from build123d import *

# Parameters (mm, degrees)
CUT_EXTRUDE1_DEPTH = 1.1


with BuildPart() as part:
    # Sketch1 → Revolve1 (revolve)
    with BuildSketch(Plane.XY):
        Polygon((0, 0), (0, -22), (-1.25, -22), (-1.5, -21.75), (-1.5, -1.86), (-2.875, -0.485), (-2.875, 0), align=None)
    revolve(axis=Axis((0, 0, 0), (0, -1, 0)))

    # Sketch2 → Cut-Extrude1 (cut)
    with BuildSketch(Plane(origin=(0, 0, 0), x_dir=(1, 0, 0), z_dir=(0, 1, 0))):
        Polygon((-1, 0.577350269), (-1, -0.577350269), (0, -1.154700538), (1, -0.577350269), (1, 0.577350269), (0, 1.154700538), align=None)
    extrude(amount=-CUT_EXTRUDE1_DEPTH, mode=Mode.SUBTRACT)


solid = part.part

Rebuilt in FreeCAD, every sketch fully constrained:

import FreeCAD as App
import Part
import Sketcher
from FreeCAD import Vector
Q = App.Units.Quantity


def add_polygon(sketch, points):
    """Adds a closed chain of lines whose ends are joined by coincident constraints."""
    first, n = sketch.GeometryCount, len(points)
    for a, b in zip(points, points[1:] + points[:1]):
        sketch.addGeometry(Part.LineSegment(App.Vector(*a, 0), App.Vector(*b, 0)), False)
    for i in range(n):
        sketch.addConstraint(Sketcher.Constraint("Coincident", first + i, 2, first + (i + 1) % n, 1))

doc = App.newDocument("Part")
body = doc.addObject("PartDesign::Body", "Body")

sketch1 = body.newObject("Sketcher::SketchObject", "Sketch")
sketch1.AttachmentSupport = (doc.getObject("XY_Plane"), [""])
sketch1.MapMode = "FlatFace"
add_polygon(sketch1, [(0, -22), (0, 0), (-2.875, 0), (-2.875, -0.485), (-1.5, -1.86), (-1.5, -21.75), (-1.25, -22)])
sketch1.addConstraint([
    Sketcher.Constraint("Vertical", 0),
    Sketcher.Constraint("Horizontal", 1),
    Sketcher.Constraint("Vertical", 2),
    Sketcher.Constraint("Vertical", 4),
    Sketcher.Constraint("Horizontal", 6),
    Sketcher.Constraint("Coincident", 0, 2, -1, 1),
    Sketcher.Constraint("Parallel", 3, 5),
    Sketcher.Constraint("DistanceY", 0, 1, 0, 2, Q("22 mm")),
    Sketcher.Constraint("Angle", 3, Q("-45 deg")),
    Sketcher.Constraint("DistanceX", 6, 1, 6, 2, Q("1.25 mm")),
    Sketcher.Constraint("DistanceY", 4, 2, 4, 1, Q("19.89 mm")),
    Sketcher.Constraint("DistanceX", 3, 2, -1, 1, Q("1.5 mm")),
    Sketcher.Constraint("DistanceX", 1, 2, 1, 1, Q("2.875 mm")),
])
revolution = body.newObject("PartDesign::Revolution", "Revolution")
revolution.Profile = sketch1
revolution.ReferenceAxis = (sketch1, ["V_Axis"])
revolution.Angle = 360

sketch2 = body.newObject("Sketcher::SketchObject", "Sketch001")
sketch2.AttachmentSupport = (doc.getObject("XZ_Plane"), [""])
sketch2.MapMode = "FlatFace"
add_polygon(sketch2, [(-1, -0.57735), (-1, 0.57735), (0, 1.154701), (1, 0.57735), (1, -0.57735), (0, -1.154701)])
sketch2.addConstraint([
    Sketcher.Constraint("Vertical", 0),
    Sketcher.Constraint("Vertical", 3),
    Sketcher.Constraint("Symmetric", 0, 2, 3, 2, -1, 1),
    Sketcher.Constraint("Symmetric", 1, 2, 4, 2, -1, 1),
    Sketcher.Constraint("PointOnObject", 1, 2, -2),
    Sketcher.Constraint("Parallel", 2, 5),
    Sketcher.Constraint("Horizontal", 0, 2, 2, 2),
    Sketcher.Constraint("Angle", 1, Q("30 deg")),
    Sketcher.Constraint("DistanceX", 0, 2, -1, 1, Q("1 mm")),
    Sketcher.Constraint("DistanceY", 0, 1, 0, 2, Q("1.154701 mm")),
])
pocket1 = body.newObject("PartDesign::Pocket", "Pocket")
pocket1.Profile = sketch2
pocket1.Length = 1.1
pocket1.Reversed = True

doc.recompute()
